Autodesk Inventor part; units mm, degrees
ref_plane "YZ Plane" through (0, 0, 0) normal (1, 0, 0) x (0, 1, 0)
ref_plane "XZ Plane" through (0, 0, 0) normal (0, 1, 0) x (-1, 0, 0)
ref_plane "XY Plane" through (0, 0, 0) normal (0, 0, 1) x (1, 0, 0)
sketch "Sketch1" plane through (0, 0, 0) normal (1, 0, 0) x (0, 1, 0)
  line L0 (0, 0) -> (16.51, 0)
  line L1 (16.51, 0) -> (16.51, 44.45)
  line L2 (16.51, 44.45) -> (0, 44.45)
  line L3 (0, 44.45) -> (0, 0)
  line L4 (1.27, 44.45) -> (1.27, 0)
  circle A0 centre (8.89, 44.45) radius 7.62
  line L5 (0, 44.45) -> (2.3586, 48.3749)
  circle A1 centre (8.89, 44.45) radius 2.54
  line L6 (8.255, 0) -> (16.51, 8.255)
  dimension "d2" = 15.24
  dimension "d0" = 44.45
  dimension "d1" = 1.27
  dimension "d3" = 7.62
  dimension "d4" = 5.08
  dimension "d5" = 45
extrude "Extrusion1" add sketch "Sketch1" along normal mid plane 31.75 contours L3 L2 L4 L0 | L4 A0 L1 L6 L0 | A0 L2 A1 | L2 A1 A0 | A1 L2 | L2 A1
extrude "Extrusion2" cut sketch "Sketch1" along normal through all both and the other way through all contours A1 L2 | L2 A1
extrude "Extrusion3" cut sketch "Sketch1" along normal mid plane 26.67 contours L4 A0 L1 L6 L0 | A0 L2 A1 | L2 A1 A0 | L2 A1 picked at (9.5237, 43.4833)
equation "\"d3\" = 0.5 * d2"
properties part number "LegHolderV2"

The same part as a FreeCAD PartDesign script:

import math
import FreeCAD as App
import Part
import Sketcher
from FreeCAD import Vector
Q = App.Units.Quantity

doc = App.newDocument("Part")
body = doc.addObject("PartDesign::Body", "Body")

# Sketch on YZ plane
sketch1 = body.newObject("Sketcher::SketchObject", "Sketch")
sketch1.AttachmentSupport = (doc.getObject("YZ_Plane"), [""])
sketch1.MapMode = "FlatFace"
sketch1.addGeometry([
    Part.LineSegment(Vector(0, 44.5, 0), Vector(0, 0, 0)),  # 0
    Part.LineSegment(Vector(0, 0, 0), Vector(8.3, 0, 0)),  # 1
    Part.LineSegment(Vector(8.3, 0, 0), Vector(16.5, 8.3, 0)),  # 2
    Part.LineSegment(Vector(16.5, 8.3, 0), Vector(16.5, 44.5, 0)),  # 3
    Part.ArcOfCircle(Part.Circle(Vector(8.9, 44.5, 0), Vector(0, 0, 1), 7.6), math.radians(0), math.radians(180)),  # 4
    Part.LineSegment(Vector(1.3, 44.5, 0), Vector(0, 44.5, 0)),  # 5
], False)
sketch1.addConstraint([
    Sketcher.Constraint("Coincident", 0, 2, 1, 1),
    Sketcher.Constraint("Coincident", 1, 2, 2, 1),
    Sketcher.Constraint("Coincident", 2, 2, 3, 1),
    Sketcher.Constraint("Tangent", 3, 2, 4, 1),
    Sketcher.Constraint("Coincident", 4, 2, 5, 1),
    Sketcher.Constraint("Coincident", 5, 2, 0, 1),
    Sketcher.Constraint("Vertical", 0),
    Sketcher.Constraint("Horizontal", 1),
    Sketcher.Constraint("Vertical", 3),
    Sketcher.Constraint("Horizontal", 5),
    Sketcher.Constraint("Coincident", 0, 2, -1, 1),
    Sketcher.Constraint("Horizontal", 3, 2, 4, 2),
    Sketcher.Constraint("Radius", 4, Q("0.3 in")),
    Sketcher.Constraint("Angle", 2, Q("45 deg")),
    Sketcher.Constraint("DistanceX", 5, 2, 5, 1, Q("0.05 in")),
    Sketcher.Constraint("DistanceY", 0, 2, 0, 1, Q("1.75 in")),
    Sketcher.Constraint("DistanceX", 1, 1, 1, 2, Q("0.325 in")),
])
pad1 = body.newObject("PartDesign::Pad", "Pad")
pad1.Profile = sketch1
pad1.Length = Q("1.25 in")
pad1.Midplane = True

# Sketch on YZ plane
sketch2 = body.newObject("Sketcher::SketchObject", "Sketch001")
sketch2.AttachmentSupport = (doc.getObject("YZ_Plane"), [""])
sketch2.MapMode = "FlatFace"
sketch2.addGeometry(Part.Circle(Vector(8.9, 44.5, 0), Vector(0, 0, 1), 2.5), False)
sketch2.addConstraint([
    Sketcher.Constraint("Diameter", 0, Q("0.2 in")),
    Sketcher.Constraint("DistanceY", -1, 1, 0, 3, Q("1.75 in")),
    Sketcher.Constraint("DistanceX", -1, 1, 0, 3, Q("0.35 in")),
])
pocket1 = body.newObject("PartDesign::Pocket", "Pocket")
pocket1.Profile = sketch2
pocket1.Type = "ThroughAll"
pocket1.Midplane = True

# Sketch on YZ plane
sketch3 = body.newObject("Sketcher::SketchObject", "Sketch002")
sketch3.AttachmentSupport = (doc.getObject("YZ_Plane"), [""])
sketch3.MapMode = "FlatFace"
sketch3.addGeometry([
    Part.LineSegment(Vector(1.3, 44.5, 0), Vector(1.3, 0, 0)),  # 0
    Part.LineSegment(Vector(1.3, 0, 0), Vector(8.3, 0, 0)),  # 1
    Part.LineSegment(Vector(8.3, 0, 0), Vector(16.5, 8.3, 0)),  # 2
    Part.LineSegment(Vector(16.5, 8.3, 0), Vector(16.5, 44.5, 0)),  # 3
    Part.ArcOfCircle(Part.Circle(Vector(8.9, 44.5, 0), Vector(0, 0, 1), 7.6), math.radians(0), math.radians(180)),  # 4
    Part.ArcOfCircle(Part.Circle(Vector(8.9, 44.5, 0), Vector(0, 0, 1), 2.5), math.radians(0), math.radians(180)),  # 5
    Part.LineSegment(Vector(11.4, 44.5, 0), Vector(6.3, 44.5, 0)),  # 6
], False)
sketch3.addConstraint([
    Sketcher.Constraint("Coincident", 0, 2, 1, 1),
    Sketcher.Constraint("Coincident", 1, 2, 2, 1),
    Sketcher.Constraint("Coincident", 2, 2, 3, 1),
    Sketcher.Constraint("Tangent", 3, 2, 4, 1),
    Sketcher.Constraint("Tangent", 4, 2, 0, 1),
    Sketcher.Constraint("Coincident", 5, 1, 6, 1),
    Sketcher.Constraint("Coincident", 6, 2, 5, 2),
    Sketcher.Constraint("Vertical", 0),
    Sketcher.Constraint("Horizontal", 1),
    Sketcher.Constraint("Vertical", 3),
    Sketcher.Constraint("Horizontal", 6),
    Sketcher.Constraint("Coincident", 5, 3, 4, 3),
    Sketcher.Constraint("PointOnObject", 0, 2, -1),
    Sketcher.Constraint("Horizontal", 4, 2, 5, 1),
    Sketcher.Constraint("Radius", 4, Q("0.3 in")),
    Sketcher.Constraint("Radius", 5, Q("0.1 in")),
    Sketcher.Constraint("Angle", 2, Q("45 deg")),
    Sketcher.Constraint("DistanceY", 0, 2, 0, 1, Q("1.75 in")),
    Sketcher.Constraint("DistanceX", -1, 1, 0, 2, Q("0.05 in")),
    Sketcher.Constraint("DistanceX", 1, 1, 1, 2, Q("0.275 in")),
])
pocket2 = body.newObject("PartDesign::Pocket", "Pocket001")
pocket2.Profile = sketch3
pocket2.Length = Q("1.05 in")
pocket2.Midplane = True

doc.recompute()
